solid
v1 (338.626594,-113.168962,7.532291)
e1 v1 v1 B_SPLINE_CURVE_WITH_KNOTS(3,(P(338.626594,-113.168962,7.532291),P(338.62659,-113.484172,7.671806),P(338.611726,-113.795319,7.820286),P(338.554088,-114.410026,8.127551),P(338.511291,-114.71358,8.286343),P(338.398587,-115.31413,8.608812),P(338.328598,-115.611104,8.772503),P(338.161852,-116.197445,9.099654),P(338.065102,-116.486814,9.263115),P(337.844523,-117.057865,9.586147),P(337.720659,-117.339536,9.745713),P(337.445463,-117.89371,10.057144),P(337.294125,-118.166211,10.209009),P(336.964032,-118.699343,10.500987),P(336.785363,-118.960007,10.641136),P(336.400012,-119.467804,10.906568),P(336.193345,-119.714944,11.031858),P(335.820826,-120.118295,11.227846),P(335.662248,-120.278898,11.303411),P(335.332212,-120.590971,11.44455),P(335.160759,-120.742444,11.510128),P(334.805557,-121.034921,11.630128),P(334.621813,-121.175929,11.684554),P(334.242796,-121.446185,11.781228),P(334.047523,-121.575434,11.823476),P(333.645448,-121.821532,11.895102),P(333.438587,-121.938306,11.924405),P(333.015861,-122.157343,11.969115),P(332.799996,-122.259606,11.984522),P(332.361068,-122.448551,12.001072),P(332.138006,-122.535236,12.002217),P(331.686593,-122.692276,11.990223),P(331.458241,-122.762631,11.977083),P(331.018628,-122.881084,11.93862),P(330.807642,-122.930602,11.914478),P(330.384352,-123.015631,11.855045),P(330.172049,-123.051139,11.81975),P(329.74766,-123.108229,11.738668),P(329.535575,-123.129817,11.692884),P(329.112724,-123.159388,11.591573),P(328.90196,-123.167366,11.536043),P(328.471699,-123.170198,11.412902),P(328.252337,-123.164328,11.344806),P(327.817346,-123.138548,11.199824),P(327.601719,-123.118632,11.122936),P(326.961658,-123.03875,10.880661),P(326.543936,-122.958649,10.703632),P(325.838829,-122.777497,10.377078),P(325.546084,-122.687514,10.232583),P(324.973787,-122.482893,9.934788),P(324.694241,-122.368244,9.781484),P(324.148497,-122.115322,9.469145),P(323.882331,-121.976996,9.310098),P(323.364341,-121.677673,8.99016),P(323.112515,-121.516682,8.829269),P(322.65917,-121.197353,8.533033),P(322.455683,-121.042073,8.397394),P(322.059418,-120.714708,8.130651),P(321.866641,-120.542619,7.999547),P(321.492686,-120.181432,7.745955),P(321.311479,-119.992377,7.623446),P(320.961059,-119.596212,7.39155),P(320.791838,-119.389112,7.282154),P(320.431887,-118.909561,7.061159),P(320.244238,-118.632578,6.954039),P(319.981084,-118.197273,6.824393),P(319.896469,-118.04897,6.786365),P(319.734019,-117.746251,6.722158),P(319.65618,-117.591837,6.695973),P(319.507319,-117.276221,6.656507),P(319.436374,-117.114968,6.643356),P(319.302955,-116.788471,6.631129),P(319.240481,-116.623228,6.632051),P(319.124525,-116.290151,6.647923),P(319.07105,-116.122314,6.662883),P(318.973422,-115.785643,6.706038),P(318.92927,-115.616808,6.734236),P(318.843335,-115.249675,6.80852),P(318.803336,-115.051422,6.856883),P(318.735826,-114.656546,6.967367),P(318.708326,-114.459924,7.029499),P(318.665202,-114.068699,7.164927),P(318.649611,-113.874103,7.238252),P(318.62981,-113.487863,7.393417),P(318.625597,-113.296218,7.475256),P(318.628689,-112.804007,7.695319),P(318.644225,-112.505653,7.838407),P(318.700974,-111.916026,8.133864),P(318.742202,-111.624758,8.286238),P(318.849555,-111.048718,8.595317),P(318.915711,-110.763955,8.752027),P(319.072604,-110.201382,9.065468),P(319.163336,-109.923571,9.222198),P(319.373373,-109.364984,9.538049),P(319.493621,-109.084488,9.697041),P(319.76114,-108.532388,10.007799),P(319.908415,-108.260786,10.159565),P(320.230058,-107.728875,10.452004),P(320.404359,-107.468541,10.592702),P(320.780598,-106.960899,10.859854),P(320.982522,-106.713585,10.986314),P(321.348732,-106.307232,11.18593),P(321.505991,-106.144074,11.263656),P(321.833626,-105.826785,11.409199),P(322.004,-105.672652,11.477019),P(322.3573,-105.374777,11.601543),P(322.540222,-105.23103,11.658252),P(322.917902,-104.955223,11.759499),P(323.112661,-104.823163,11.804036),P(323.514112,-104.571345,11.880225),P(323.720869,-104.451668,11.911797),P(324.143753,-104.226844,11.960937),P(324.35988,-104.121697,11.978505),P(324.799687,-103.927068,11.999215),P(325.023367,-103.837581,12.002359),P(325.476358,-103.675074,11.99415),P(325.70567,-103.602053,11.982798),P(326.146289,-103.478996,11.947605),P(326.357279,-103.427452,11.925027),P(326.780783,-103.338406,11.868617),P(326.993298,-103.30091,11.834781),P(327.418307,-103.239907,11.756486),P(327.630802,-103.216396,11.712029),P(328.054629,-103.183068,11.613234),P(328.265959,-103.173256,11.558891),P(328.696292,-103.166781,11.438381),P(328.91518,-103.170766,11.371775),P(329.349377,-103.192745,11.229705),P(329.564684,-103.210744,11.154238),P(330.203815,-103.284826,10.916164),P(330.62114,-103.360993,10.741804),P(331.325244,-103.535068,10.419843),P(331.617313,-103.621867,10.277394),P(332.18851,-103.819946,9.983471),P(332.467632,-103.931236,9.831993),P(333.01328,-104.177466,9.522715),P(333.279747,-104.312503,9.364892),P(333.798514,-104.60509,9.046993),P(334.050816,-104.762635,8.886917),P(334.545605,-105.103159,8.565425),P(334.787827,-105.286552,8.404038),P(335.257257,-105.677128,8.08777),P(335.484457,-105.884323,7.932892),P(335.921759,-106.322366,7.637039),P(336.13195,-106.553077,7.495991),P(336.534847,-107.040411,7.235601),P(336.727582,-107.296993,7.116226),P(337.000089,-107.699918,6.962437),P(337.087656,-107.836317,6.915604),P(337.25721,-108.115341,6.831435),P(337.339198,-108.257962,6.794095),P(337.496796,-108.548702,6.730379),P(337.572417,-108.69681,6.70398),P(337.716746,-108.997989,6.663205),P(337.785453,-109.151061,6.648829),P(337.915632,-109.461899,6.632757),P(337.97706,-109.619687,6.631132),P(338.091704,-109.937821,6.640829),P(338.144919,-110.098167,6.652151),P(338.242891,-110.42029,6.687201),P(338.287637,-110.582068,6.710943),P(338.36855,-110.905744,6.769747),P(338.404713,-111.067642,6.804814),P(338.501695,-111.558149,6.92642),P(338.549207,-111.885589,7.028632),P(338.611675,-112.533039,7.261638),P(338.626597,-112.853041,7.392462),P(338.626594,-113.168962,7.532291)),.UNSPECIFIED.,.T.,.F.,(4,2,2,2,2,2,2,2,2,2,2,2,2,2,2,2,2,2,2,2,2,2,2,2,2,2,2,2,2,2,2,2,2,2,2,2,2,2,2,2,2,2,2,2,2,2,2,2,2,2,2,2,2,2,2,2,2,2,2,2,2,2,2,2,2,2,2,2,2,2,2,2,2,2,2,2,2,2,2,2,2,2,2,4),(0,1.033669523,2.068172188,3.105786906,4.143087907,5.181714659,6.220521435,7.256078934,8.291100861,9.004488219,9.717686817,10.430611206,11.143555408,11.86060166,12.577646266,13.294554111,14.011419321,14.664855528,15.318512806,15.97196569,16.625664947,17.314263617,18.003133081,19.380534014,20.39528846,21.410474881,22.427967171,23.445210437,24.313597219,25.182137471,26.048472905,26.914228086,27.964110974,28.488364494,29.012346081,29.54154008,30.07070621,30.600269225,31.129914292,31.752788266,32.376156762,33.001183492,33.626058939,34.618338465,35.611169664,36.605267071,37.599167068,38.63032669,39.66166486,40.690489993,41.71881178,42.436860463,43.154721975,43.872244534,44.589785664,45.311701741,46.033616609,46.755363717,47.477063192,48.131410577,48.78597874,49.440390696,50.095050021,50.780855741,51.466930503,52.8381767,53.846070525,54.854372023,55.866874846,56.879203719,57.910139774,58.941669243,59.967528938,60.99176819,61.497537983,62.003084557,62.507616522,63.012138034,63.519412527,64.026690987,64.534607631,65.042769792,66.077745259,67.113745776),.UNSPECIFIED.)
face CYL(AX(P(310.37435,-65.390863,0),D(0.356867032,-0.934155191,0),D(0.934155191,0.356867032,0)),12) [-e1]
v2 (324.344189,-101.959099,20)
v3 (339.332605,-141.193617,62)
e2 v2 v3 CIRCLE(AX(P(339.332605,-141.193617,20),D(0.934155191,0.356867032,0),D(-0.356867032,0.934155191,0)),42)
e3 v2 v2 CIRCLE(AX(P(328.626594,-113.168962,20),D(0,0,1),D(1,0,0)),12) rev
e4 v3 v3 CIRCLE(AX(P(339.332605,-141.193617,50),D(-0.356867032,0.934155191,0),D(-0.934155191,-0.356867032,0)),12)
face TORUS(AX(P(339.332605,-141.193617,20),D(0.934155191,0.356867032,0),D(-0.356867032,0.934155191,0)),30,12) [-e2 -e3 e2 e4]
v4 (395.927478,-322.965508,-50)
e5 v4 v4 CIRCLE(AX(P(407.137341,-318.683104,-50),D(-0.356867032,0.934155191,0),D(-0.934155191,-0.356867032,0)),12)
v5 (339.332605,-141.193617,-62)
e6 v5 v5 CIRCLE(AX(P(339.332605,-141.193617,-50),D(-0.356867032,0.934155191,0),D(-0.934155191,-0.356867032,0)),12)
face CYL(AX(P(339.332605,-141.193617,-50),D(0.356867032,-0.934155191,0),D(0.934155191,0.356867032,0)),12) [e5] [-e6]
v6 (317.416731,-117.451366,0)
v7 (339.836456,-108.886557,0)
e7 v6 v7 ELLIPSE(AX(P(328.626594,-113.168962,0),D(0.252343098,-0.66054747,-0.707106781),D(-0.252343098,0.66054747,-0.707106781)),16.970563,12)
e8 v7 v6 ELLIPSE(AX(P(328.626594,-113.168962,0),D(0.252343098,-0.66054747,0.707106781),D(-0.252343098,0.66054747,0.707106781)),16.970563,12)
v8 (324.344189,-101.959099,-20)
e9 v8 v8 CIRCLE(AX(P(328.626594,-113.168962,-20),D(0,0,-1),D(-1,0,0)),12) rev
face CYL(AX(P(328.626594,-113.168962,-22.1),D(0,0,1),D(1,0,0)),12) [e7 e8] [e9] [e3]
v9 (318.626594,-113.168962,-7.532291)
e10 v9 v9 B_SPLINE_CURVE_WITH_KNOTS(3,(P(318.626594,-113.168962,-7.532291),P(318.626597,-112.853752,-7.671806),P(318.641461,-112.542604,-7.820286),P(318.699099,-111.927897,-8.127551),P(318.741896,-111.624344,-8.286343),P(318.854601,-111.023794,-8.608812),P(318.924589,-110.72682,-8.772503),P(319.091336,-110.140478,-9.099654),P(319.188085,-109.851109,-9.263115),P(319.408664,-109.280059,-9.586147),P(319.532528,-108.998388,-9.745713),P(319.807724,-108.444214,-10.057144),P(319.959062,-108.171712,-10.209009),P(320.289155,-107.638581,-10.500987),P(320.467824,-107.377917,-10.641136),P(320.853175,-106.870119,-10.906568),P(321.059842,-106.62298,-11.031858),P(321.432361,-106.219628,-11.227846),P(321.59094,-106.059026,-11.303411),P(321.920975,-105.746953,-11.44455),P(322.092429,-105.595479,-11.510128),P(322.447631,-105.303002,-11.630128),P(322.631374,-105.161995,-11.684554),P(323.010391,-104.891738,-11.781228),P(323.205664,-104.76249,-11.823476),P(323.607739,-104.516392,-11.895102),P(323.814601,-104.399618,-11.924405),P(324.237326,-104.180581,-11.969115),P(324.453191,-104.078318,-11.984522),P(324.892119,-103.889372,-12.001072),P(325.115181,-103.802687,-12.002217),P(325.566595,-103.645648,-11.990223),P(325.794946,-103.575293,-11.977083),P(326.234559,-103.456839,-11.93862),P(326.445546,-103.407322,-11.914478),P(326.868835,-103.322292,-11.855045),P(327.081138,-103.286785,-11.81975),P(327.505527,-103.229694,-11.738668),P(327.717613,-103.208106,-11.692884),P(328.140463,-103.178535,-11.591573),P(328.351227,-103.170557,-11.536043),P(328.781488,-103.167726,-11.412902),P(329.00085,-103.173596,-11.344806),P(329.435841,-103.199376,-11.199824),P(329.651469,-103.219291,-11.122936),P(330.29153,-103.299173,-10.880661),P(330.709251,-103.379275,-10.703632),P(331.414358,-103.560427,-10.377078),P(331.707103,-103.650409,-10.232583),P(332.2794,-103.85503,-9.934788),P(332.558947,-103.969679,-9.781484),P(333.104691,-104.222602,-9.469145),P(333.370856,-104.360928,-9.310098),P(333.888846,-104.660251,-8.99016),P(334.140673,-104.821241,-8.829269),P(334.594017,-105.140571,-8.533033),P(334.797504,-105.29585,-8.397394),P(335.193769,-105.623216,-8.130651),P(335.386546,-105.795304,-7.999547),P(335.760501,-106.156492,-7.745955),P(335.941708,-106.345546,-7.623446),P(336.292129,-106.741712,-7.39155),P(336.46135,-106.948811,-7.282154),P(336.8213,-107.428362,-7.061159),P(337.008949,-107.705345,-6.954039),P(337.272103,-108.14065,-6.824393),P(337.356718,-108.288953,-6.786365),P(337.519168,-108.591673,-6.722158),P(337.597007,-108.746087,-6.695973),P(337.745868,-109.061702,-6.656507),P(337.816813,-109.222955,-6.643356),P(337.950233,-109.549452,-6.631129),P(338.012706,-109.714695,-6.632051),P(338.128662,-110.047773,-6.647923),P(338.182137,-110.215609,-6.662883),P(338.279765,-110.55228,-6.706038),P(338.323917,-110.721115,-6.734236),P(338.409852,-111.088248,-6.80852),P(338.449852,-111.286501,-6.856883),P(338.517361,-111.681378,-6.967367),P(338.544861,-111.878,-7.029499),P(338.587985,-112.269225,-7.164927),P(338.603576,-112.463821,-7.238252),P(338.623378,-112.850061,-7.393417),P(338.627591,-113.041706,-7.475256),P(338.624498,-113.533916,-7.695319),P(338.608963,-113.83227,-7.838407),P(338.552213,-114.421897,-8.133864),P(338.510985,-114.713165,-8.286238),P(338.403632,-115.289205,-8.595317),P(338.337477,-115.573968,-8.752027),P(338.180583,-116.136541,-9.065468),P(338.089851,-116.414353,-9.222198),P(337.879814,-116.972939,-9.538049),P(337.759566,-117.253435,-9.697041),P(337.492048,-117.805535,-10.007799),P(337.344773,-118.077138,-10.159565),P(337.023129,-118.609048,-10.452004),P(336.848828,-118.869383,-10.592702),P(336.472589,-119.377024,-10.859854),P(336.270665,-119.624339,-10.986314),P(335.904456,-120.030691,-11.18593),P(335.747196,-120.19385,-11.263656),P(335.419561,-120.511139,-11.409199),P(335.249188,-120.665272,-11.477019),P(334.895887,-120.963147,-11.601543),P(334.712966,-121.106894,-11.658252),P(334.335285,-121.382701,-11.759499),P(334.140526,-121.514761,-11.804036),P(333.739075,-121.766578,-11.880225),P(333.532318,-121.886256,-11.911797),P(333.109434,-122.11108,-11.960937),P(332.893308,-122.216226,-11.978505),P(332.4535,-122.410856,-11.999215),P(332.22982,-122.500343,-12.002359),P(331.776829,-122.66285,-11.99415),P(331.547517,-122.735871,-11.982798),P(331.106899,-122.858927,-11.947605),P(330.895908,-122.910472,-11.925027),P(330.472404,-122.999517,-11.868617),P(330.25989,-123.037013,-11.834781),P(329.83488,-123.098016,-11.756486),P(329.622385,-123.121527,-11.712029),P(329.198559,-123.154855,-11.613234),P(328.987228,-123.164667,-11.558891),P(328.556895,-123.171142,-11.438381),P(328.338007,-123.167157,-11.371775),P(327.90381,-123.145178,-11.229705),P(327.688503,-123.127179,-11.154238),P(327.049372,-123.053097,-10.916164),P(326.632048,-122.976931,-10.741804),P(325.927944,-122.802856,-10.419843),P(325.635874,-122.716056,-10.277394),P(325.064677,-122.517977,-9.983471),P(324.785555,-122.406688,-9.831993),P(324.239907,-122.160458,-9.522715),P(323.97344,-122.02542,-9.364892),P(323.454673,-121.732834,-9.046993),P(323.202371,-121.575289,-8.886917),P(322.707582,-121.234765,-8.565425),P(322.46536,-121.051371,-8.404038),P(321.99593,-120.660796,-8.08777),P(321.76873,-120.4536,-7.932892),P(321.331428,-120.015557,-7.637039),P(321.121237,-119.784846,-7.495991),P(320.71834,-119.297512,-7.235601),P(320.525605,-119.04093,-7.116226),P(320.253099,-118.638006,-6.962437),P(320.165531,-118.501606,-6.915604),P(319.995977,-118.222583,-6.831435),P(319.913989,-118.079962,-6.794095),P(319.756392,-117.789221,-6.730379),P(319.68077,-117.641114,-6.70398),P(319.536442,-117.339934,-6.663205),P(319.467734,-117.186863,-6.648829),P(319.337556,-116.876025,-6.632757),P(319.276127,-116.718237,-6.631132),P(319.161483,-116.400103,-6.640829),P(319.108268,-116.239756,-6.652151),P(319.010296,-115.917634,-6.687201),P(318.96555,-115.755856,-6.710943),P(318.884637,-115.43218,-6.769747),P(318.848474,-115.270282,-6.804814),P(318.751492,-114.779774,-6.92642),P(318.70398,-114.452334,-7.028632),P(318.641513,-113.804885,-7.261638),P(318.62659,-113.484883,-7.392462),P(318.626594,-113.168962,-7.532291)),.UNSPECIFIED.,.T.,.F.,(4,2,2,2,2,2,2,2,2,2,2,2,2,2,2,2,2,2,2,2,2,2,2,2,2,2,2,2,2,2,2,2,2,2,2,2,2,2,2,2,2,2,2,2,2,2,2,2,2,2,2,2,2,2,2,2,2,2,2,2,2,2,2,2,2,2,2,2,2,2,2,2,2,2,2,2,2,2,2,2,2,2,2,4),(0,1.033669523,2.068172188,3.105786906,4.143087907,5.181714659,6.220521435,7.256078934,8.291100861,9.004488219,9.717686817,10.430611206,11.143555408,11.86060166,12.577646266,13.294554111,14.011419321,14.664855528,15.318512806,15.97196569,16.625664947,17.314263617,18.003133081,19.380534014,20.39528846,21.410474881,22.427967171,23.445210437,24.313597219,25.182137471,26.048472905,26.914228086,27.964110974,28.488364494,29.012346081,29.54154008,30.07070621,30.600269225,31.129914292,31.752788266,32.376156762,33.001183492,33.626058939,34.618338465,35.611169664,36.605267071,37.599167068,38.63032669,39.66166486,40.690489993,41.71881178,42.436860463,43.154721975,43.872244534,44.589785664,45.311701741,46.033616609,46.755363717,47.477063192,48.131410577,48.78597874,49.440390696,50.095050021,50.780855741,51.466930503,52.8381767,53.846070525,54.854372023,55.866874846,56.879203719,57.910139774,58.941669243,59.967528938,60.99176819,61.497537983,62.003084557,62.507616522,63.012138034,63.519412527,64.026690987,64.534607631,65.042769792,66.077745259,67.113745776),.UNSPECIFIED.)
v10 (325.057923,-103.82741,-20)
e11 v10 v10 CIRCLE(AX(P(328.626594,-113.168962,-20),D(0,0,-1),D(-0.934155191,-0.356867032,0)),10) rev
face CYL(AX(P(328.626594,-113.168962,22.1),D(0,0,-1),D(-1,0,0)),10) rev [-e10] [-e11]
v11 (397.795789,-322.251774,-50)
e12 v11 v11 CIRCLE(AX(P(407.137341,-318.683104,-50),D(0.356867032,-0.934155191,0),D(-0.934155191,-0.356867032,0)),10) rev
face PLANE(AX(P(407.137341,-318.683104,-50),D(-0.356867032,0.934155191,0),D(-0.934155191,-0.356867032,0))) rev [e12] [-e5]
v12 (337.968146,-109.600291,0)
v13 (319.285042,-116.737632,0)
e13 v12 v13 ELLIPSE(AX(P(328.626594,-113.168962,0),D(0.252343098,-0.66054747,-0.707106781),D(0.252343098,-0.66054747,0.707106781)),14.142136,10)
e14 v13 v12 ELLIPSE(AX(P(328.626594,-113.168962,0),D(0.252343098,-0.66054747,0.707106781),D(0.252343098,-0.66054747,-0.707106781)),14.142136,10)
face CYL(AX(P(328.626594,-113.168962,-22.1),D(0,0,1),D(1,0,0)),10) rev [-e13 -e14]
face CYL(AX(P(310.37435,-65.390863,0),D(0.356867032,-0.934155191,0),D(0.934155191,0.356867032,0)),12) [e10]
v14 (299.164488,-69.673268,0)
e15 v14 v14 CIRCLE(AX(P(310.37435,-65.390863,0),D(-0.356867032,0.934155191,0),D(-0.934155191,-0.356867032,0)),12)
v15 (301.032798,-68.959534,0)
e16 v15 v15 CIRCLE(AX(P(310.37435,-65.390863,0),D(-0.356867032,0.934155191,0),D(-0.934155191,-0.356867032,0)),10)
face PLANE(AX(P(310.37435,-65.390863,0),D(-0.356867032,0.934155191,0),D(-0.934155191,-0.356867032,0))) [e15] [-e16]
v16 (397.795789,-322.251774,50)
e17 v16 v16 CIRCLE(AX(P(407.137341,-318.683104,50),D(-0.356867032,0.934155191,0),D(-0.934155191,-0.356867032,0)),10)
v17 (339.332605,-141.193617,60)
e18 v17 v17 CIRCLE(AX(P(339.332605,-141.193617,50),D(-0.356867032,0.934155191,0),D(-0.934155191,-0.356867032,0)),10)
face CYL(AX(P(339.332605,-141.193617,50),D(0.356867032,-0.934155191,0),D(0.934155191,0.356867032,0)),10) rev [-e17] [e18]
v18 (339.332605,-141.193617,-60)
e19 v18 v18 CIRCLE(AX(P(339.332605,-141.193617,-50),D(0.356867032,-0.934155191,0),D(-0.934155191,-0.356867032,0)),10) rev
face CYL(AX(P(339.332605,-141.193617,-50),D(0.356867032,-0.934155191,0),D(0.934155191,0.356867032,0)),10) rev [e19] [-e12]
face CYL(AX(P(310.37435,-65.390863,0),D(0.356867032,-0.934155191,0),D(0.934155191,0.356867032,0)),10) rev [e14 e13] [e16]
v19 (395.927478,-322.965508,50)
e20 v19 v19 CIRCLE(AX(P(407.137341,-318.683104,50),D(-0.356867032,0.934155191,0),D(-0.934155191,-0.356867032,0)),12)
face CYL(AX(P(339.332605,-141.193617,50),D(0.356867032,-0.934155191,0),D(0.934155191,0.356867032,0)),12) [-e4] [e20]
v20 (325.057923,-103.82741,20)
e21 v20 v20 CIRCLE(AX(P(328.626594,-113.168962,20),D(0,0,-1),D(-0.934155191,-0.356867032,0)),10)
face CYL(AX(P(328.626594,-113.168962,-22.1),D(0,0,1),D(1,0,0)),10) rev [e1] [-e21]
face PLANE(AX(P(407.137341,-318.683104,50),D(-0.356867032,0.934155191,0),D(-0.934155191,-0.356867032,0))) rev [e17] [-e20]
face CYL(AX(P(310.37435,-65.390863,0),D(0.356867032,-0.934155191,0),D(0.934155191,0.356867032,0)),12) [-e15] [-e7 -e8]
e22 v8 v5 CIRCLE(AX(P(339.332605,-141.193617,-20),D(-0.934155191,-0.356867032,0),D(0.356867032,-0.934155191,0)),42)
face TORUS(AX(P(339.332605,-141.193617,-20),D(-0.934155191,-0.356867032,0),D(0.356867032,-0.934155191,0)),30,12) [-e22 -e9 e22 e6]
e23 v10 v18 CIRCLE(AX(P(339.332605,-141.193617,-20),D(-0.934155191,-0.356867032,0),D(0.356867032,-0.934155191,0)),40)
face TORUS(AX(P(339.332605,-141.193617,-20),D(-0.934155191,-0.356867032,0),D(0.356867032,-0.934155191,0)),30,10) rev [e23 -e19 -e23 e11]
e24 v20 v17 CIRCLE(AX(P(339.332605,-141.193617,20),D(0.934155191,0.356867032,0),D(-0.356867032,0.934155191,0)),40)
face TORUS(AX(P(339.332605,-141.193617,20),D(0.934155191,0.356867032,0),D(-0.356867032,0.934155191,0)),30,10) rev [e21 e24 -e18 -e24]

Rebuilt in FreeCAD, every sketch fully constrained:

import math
import FreeCAD as App
import Part
import Sketcher

V = App.Vector

doc = App.newDocument("Part")
body = doc.addObject("PartDesign::Body", "Body")

sketch1 = body.newObject("Sketcher::SketchObject", "Sketch")
sketch1.Placement = App.Placement(V(310.37435, -65.390863, 0), App.Rotation(V(-0.934155191, -0.356867032, 0), V(0, 0, -0.999999999), V(0.356867032, -0.934155191, 0), "ZXY"))
sketch1.addGeometry(Part.Circle(V(0, 0, 0), V(0, 0, 1), 12), False)
sketch1.addGeometry(Part.Circle(V(0, 0, 0), V(0, 0, 1), 10), False)
sketch1.addConstraint(Sketcher.Constraint("Coincident", 0, 3, -1, 1))
sketch1.addConstraint(Sketcher.Constraint("Coincident", 1, 3, -1, 1))
sketch1.addConstraint(Sketcher.Constraint("Diameter", 0, 24.0))
sketch1.addConstraint(Sketcher.Constraint("Diameter", 1, 20.0))

sketch2 = body.newObject("Sketcher::SketchObject", "Sketch001")
sketch2.Placement = App.Placement(V(249.047611, 95.141453, 0), App.Rotation(V(0.356867032, -0.934155191, 0), V(0, 0, 0.999999999), V(-0.934155191, -0.356867032, 0), "ZXY"))
sketch2.addGeometry(Part.LineSegment(V(172, 0, 0), V(223, 0, 0)), False)
sketch2.addGeometry(Part.LineSegment(V(223, 0, 0), V(223, 20, 0)), False)
sketch2.addGeometry(Part.ArcOfCircle(Part.Circle(V(253, 20, 0), V(0, 0, 1), 30), math.radians(90), math.radians(180)), False)
sketch2.addGeometry(Part.LineSegment(V(253, 50, 0), V(443, 50, 0)), False)
sketch2.addConstraint(Sketcher.Constraint("Coincident", 0, 2, 1, 1))
sketch2.addConstraint(Sketcher.Constraint("Tangent", 1, 2, 2, 2))
sketch2.addConstraint(Sketcher.Constraint("Tangent", 2, 1, 3, 1))
sketch2.addConstraint(Sketcher.Constraint("Horizontal", 0))
sketch2.addConstraint(Sketcher.Constraint("Vertical", 1))
sketch2.addConstraint(Sketcher.Constraint("Horizontal", 3))
sketch2.addConstraint(Sketcher.Constraint("PointOnObject", 0, 1, -1))
sketch2.addConstraint(Sketcher.Constraint("Radius", 2, 30.000001))
sketch2.addConstraint(Sketcher.Constraint("DistanceX", 3, 1, 3, 2, 190.0))
sketch2.addConstraint(Sketcher.Constraint("DistanceY", 1, 1, 1, 2, 20.0))
sketch2.addConstraint(Sketcher.Constraint("DistanceX", 0, 1, 0, 2, 51.145783))
sketch2.addConstraint(Sketcher.Constraint("DistanceX", -1, 1, 2, 3, 252.993372))
doc.recompute()

additivepipe = body.newObject("PartDesign::AdditivePipe", "AdditivePipe")
additivepipe.Profile = sketch1
additivepipe.Spine = (sketch2, ["Edge1", "Edge2", "Edge3", "Edge4"])
additivepipe.Transition = "Right corner"
doc.recompute()

mirrored = body.newObject("PartDesign::Mirrored", "Mirrored")
mirrored.Originals = [additivepipe]
mirrored.MirrorPlane = (doc.getObject("XY_Plane"), [""])
body.Tip = mirrored

doc.recompute()
